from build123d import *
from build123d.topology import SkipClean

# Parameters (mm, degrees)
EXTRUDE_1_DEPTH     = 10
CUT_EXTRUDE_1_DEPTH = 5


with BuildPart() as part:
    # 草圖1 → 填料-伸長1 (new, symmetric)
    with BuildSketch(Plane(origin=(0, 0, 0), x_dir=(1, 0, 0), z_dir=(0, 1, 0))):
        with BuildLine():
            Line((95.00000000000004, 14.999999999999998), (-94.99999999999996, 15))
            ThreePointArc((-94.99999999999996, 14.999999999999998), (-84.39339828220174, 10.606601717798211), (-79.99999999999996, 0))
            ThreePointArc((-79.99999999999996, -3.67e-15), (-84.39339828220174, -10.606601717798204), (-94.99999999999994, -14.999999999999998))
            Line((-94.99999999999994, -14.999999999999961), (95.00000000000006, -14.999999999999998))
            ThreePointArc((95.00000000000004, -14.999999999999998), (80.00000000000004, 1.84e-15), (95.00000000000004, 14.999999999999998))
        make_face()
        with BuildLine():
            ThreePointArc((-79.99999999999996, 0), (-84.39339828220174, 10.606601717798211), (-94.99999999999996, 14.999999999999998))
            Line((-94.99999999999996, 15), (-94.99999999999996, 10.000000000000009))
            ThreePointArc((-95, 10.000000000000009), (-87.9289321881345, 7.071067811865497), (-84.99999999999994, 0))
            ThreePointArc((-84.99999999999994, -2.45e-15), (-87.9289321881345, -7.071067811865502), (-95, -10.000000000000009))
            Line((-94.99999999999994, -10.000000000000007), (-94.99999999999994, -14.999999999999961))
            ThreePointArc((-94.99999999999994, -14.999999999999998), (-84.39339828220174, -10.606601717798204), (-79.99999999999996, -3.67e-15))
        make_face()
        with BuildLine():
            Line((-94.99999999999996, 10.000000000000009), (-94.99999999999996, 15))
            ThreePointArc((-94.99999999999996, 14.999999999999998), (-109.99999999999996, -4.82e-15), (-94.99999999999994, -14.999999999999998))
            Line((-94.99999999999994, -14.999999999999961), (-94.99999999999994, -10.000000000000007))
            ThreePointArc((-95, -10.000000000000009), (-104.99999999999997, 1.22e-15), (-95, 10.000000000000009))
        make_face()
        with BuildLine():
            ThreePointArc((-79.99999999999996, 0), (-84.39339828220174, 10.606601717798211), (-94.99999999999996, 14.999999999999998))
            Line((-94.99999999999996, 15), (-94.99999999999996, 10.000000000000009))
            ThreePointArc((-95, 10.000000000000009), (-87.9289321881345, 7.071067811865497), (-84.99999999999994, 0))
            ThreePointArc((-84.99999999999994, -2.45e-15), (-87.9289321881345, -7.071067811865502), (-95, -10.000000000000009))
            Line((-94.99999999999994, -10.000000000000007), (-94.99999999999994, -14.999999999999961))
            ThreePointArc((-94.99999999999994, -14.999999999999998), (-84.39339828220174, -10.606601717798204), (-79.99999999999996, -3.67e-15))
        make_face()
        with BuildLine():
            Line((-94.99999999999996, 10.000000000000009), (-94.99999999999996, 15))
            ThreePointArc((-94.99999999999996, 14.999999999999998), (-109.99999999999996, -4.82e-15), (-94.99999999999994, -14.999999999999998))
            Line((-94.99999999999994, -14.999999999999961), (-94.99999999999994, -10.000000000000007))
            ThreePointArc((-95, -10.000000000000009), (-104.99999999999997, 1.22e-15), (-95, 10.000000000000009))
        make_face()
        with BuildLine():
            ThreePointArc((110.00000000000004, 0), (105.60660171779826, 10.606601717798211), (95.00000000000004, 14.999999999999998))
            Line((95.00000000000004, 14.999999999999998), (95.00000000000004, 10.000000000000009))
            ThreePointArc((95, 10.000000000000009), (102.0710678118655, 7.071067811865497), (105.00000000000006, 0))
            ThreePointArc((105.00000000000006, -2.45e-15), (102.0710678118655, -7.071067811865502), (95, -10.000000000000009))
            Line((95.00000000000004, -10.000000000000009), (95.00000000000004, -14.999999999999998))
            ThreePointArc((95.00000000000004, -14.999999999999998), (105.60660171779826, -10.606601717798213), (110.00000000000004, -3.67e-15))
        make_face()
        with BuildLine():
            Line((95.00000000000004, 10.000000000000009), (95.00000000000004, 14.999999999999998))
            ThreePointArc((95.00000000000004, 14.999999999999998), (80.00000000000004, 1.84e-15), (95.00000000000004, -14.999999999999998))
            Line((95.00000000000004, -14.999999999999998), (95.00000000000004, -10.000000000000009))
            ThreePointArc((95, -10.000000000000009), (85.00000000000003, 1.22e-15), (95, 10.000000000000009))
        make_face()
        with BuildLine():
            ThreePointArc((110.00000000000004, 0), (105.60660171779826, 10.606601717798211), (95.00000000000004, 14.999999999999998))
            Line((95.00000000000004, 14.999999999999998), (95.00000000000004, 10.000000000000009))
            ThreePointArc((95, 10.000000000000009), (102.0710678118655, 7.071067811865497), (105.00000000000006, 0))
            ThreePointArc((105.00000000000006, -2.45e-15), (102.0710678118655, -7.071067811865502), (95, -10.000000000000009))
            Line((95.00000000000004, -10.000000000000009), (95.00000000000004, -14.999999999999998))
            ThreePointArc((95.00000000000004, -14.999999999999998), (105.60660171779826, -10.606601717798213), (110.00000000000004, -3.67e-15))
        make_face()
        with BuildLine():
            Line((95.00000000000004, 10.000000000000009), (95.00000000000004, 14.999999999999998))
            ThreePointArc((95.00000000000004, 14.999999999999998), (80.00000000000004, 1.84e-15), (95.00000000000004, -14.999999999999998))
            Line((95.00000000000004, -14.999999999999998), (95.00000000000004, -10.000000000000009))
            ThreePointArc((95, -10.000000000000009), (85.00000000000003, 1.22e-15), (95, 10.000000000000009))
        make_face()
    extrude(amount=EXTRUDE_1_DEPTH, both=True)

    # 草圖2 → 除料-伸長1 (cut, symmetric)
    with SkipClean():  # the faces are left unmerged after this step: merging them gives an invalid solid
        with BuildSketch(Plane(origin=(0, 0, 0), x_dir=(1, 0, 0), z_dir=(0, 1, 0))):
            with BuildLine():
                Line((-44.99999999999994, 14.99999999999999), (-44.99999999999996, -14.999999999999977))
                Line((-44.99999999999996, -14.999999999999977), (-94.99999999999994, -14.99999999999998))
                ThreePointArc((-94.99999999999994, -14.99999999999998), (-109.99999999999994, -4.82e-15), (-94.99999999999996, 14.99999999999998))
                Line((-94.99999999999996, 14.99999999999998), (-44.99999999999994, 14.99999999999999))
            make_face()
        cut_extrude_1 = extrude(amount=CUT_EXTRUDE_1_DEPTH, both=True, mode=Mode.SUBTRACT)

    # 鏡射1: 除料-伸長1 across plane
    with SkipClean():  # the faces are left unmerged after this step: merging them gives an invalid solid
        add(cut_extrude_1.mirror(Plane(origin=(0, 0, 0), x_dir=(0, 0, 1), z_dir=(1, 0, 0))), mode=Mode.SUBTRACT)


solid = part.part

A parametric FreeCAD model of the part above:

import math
import FreeCAD as App
import Part
import Sketcher

V = App.Vector

doc = App.newDocument("Part")
body = doc.addObject("PartDesign::Body", "Body")

sketch1 = body.newObject("Sketcher::SketchObject", "Sketch")
sketch1.AttachmentSupport = (doc.getObject("XZ_Plane"), [""])
sketch1.MapMode = "FlatFace"
sketch1.addGeometry([
    Part.LineSegment(V(95, -15, 0), V(-95, -15, 0)),
    Part.ArcOfCircle(Part.Circle(V(-95, 0, 0), V(0, 0, 1), 15), math.radians(90), math.radians(270)),
    Part.LineSegment(V(-95, 15, 0), V(95, 15, 0)),
    Part.ArcOfCircle(Part.Circle(V(95, 0, 0), V(0, 0, 1), 15), math.radians(-90), math.radians(90)),
    Part.Circle(V(-95, 0, 0), V(0, 0, 1), 10),
    Part.Circle(V(95, 0, 0), V(0, 0, 1), 10),
], False)
sketch1.addConstraint([
    Sketcher.Constraint("Tangent", 0, 2, 1, 2),
    Sketcher.Constraint("Tangent", 1, 1, 2, 1),
    Sketcher.Constraint("Tangent", 2, 2, 3, 2),
    Sketcher.Constraint("Tangent", 3, 1, 0, 1),
    Sketcher.Constraint("Horizontal", 0),
    Sketcher.Constraint("Horizontal", 2),
    Sketcher.Constraint("Coincident", 4, 3, 1, 3),
    Sketcher.Constraint("Coincident", 5, 3, 3, 3),
    Sketcher.Constraint("Equal", 4, 5),
    Sketcher.Constraint("Symmetric", 1, 3, 3, 3, -1, 1),
    Sketcher.Constraint("Diameter", 4, 20.0),
    Sketcher.Constraint("Radius", 1, 15.0),
    Sketcher.Constraint("DistanceX", 0, 2, 0, 1, 190.0),
])
pad1 = body.newObject("PartDesign::Pad", "Pad")
pad1.Profile = sketch1
pad1.Length = 20
pad1.Midplane = True

sketch2 = body.newObject("Sketcher::SketchObject", "Sketch001")
sketch2.AttachmentSupport = (doc.getObject("XZ_Plane"), [""])
sketch2.MapMode = "FlatFace"
sketch2.addGeometry([
    Part.LineSegment(V(-45, 15, 0), V(-45, -15, 0)),
    Part.LineSegment(V(-45, -15, 0), V(-95, -15, 0)),
    Part.ArcOfCircle(Part.Circle(V(-95, 0, 0), V(0, 0, 1), 15), math.radians(90), math.radians(270)),
    Part.LineSegment(V(-95, 15, 0), V(-45, 15, 0)),
], False)
sketch2.addConstraint([
    Sketcher.Constraint("Coincident", 0, 2, 1, 1),
    Sketcher.Constraint("Tangent", 1, 2, 2, 2),
    Sketcher.Constraint("Tangent", 2, 1, 3, 1),
    Sketcher.Constraint("Coincident", 3, 2, 0, 1),
    Sketcher.Constraint("Vertical", 0),
    Sketcher.Constraint("Horizontal", 1),
    Sketcher.Constraint("Horizontal", 3),
    Sketcher.Constraint("PointOnObject", 2, 3, -1),
    Sketcher.Constraint("Radius", 2, 15.0),
    Sketcher.Constraint("DistanceX", 1, 2, 1, 1, 50.0),
    Sketcher.Constraint("DistanceX", 2, 3, -1, 1, 95.0),
])
pocket1 = body.newObject("PartDesign::Pocket", "Pocket")
pocket1.Profile = sketch2
pocket1.Length = 10
pocket1.Midplane = True
doc.recompute()

mirrored = body.newObject("PartDesign::Mirrored", "Mirrored")
mirrored.Originals = [pocket1]
mirrored.MirrorPlane = (doc.getObject("YZ_Plane"), [""])
body.Tip = mirrored

doc.recompute()
